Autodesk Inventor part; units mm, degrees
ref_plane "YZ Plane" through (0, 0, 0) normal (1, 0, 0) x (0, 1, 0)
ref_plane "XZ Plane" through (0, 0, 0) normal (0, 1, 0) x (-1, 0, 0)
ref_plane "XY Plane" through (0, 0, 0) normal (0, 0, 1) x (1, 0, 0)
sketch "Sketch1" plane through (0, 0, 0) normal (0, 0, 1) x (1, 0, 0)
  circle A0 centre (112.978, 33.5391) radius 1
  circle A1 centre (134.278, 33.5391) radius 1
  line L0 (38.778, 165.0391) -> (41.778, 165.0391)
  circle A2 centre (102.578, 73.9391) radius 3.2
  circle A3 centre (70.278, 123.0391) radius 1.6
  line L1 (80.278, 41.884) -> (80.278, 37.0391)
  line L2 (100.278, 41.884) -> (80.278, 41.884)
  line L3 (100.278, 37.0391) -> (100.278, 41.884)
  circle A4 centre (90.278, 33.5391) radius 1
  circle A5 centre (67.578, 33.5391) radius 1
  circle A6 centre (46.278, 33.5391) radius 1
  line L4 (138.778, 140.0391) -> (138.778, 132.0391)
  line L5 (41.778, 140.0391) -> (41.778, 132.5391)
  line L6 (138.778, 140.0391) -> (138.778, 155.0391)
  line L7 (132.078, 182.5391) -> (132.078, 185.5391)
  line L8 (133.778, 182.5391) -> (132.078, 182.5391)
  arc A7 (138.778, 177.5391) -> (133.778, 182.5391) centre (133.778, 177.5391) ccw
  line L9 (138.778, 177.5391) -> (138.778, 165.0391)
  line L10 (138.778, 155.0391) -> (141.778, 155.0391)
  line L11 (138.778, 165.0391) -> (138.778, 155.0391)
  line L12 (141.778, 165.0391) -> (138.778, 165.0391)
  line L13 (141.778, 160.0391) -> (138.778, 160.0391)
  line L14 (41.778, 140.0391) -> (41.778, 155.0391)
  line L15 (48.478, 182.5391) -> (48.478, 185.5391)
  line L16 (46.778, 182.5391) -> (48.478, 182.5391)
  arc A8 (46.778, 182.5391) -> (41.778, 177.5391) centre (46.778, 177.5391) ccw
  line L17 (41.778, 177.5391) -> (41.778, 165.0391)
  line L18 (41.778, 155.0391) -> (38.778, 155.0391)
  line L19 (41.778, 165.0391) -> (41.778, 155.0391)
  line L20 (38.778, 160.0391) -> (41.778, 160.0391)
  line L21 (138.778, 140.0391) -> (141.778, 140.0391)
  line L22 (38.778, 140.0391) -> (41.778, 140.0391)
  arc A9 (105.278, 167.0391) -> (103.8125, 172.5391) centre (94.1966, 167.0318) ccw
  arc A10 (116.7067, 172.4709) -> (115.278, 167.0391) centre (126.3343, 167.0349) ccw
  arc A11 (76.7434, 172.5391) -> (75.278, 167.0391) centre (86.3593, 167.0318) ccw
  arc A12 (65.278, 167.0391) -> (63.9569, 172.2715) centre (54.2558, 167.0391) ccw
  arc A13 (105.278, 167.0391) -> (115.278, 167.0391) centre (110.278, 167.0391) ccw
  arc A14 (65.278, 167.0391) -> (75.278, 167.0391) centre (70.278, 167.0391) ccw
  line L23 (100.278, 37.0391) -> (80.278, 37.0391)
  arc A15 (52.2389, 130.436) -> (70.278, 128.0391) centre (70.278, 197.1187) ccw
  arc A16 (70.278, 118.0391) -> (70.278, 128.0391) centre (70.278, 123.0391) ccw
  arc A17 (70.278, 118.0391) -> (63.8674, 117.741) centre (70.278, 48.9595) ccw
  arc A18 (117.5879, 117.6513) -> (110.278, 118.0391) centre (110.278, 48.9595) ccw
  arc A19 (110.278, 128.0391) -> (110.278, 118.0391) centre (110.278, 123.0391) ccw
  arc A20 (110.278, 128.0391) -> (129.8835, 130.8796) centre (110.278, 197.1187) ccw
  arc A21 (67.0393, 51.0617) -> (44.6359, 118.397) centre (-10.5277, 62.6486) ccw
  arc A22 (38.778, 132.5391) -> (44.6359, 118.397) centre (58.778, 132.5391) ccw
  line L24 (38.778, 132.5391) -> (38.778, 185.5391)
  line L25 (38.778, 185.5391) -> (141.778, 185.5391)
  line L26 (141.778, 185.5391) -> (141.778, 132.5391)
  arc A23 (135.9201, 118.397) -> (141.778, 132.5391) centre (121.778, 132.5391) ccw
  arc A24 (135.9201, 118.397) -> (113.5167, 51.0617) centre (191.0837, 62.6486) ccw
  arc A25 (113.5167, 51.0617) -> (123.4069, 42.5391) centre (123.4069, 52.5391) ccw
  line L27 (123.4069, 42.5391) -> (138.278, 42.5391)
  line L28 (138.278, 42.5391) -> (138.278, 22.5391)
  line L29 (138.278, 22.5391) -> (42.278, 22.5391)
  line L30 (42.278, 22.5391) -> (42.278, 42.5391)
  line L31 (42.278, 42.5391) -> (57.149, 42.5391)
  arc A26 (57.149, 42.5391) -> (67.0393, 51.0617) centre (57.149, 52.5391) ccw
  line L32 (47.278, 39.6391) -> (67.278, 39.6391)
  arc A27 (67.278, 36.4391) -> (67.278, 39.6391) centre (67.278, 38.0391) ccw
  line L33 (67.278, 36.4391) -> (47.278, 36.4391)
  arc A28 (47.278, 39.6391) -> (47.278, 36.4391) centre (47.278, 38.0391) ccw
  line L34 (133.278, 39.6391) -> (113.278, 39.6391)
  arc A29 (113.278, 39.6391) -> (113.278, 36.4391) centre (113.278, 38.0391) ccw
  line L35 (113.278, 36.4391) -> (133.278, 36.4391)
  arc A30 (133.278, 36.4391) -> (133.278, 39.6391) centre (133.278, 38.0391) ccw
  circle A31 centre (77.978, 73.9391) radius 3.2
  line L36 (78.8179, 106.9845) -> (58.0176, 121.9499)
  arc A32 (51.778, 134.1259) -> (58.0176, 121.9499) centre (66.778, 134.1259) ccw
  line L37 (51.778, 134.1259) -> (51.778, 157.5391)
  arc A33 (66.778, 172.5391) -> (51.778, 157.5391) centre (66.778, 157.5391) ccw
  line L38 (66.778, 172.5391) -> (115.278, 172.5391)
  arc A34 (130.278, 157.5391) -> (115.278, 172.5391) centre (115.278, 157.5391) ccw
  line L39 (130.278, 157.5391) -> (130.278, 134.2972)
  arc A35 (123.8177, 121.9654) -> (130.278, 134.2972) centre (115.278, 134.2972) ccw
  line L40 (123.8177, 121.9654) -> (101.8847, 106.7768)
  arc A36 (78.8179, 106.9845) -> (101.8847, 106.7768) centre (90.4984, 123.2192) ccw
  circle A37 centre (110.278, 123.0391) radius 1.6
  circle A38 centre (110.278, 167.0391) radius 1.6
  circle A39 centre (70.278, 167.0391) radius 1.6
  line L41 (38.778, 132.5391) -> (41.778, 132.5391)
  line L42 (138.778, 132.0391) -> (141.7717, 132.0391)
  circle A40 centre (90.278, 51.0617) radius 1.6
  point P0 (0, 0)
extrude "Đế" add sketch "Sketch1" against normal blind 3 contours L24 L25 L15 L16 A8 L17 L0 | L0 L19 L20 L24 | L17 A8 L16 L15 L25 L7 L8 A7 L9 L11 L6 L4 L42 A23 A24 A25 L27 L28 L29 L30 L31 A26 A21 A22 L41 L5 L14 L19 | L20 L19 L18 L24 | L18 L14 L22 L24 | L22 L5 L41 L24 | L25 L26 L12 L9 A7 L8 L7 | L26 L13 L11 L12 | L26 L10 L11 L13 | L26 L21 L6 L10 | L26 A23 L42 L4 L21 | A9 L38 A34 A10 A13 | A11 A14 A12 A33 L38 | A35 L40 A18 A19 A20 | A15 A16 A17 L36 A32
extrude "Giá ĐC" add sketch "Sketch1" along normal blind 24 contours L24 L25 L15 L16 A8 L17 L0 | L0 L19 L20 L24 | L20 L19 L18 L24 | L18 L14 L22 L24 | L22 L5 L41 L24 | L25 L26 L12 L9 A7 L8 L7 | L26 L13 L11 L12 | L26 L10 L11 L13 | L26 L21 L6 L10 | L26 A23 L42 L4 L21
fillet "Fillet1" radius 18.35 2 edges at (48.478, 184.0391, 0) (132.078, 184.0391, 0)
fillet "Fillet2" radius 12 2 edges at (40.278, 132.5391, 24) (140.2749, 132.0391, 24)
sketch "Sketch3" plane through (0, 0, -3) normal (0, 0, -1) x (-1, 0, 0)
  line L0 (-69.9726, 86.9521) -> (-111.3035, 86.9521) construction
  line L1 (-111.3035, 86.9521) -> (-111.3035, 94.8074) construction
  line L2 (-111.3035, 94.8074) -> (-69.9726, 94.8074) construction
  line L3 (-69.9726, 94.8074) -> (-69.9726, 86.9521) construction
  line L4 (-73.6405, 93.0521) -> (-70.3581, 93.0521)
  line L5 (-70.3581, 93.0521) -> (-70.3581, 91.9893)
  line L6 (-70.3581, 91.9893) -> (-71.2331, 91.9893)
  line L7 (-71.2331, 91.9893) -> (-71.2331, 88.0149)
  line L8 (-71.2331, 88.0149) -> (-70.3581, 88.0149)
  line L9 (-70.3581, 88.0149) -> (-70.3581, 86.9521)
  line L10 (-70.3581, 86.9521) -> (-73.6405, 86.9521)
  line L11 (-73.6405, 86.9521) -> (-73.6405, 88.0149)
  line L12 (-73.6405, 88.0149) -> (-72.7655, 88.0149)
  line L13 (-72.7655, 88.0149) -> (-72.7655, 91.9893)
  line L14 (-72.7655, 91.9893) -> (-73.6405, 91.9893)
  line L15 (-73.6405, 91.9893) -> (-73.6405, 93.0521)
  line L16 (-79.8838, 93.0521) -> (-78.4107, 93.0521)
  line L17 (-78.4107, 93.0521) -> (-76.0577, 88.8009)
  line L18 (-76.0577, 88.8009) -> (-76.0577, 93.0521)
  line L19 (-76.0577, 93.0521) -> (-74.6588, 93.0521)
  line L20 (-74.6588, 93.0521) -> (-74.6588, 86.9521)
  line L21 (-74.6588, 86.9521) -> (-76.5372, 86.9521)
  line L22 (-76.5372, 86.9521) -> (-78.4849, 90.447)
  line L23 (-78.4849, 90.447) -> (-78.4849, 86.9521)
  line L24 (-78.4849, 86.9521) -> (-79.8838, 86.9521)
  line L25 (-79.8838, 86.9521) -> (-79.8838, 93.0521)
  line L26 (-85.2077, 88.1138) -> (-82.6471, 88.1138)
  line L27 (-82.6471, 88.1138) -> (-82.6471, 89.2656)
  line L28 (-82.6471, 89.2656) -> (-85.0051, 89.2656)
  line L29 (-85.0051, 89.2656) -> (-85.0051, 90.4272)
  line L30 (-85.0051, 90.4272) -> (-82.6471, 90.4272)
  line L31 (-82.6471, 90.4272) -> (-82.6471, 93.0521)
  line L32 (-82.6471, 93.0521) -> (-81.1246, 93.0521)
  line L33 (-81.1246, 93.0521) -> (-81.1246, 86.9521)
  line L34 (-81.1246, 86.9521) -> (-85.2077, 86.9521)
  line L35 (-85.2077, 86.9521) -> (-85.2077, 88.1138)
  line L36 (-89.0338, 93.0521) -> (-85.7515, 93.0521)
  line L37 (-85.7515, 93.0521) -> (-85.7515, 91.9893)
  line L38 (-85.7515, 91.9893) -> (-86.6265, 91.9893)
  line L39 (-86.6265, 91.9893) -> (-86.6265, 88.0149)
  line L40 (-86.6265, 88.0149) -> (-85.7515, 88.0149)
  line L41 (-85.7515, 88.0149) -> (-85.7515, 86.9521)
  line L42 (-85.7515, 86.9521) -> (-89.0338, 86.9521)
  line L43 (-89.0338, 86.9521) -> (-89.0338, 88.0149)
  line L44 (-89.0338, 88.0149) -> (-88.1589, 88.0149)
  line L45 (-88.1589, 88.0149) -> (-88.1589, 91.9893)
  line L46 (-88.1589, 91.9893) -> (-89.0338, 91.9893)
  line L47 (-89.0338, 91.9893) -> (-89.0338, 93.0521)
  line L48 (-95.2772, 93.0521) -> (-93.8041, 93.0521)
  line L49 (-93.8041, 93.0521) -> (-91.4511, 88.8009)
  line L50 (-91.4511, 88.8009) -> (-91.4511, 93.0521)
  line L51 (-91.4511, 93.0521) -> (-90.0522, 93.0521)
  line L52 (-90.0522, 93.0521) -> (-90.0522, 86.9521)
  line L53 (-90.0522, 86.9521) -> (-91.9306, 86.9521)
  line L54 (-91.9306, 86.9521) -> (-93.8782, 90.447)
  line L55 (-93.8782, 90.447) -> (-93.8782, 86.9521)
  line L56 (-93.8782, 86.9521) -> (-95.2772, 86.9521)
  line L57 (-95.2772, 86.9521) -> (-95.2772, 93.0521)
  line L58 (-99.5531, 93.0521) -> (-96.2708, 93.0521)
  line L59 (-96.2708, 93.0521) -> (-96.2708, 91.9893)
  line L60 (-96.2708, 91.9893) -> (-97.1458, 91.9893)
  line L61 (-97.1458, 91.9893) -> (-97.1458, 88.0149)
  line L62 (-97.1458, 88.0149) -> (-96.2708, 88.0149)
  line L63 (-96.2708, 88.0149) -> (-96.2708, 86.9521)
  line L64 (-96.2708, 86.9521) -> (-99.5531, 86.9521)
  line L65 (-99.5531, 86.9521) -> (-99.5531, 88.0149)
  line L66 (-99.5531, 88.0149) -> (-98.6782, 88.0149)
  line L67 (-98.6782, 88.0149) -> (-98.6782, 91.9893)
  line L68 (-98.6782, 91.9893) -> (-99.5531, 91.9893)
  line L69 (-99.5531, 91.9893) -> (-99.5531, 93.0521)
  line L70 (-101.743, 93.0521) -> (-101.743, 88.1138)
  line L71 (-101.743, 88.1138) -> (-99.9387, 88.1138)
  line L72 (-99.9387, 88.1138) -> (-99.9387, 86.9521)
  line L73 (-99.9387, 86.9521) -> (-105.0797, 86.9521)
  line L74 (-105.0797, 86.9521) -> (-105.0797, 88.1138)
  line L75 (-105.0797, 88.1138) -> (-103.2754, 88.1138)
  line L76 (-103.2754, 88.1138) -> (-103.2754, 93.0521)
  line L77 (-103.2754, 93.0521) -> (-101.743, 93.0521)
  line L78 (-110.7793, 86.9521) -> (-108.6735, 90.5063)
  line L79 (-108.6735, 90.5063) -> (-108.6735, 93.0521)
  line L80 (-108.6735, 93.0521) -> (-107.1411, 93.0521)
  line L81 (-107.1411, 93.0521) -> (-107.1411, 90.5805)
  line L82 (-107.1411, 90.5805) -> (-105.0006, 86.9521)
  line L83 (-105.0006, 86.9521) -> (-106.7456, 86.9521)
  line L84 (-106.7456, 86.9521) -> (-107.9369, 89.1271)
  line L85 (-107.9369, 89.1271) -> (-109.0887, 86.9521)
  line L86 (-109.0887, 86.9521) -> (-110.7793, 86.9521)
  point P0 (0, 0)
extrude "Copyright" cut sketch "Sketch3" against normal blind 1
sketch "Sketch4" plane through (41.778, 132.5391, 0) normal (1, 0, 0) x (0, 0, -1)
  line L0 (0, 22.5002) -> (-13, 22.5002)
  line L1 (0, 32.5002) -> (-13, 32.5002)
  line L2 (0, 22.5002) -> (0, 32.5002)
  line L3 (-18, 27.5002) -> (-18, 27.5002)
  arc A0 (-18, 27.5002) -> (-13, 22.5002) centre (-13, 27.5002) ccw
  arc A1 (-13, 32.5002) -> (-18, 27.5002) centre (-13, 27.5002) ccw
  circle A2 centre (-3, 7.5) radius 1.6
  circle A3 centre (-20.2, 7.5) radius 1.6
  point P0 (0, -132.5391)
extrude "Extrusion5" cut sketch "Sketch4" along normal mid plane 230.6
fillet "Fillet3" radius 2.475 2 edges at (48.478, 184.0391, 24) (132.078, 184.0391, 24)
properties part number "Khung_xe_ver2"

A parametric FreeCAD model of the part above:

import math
import FreeCAD as App
import Part
import Sketcher
Q = App.Units.Quantity


def edges_at(feature, points):
    """Names of the edges that pass closest to the given points."""
    edges = feature.Shape.Edges
    near = lambda p: min(range(len(edges)), key=lambda i: edges[i].distToShape(Part.Vertex(*p))[0])
    return sorted({f"Edge{near(p) + 1}" for p in points})


def add_polygon(sketch, points):
    """Adds a closed chain of lines whose ends are joined by coincident constraints."""
    first, n = sketch.GeometryCount, len(points)
    for a, b in zip(points, points[1:] + points[:1]):
        sketch.addGeometry(Part.LineSegment(App.Vector(*a, 0), App.Vector(*b, 0)), False)
    for i in range(n):
        sketch.addConstraint(Sketcher.Constraint("Coincident", first + i, 2, first + (i + 1) % n, 1))

doc = App.newDocument("Part")
body = doc.addObject("PartDesign::Body", "Body")

# Sketch on XY plane
sketch1 = doc.addObject("Sketcher::SketchObject", "Sketch")
body.addObject(sketch1)
sketch1.AttachmentSupport = (doc.XY_Plane, [""])
sketch1.MapMode = "FlatFace"
sketch1.addGeometry(Part.LineSegment(App.Vector(38.778, 185.5391, 0), App.Vector(38.778, 132.5391, 0)), False)  # 0
sketch1.addGeometry(Part.ArcOfCircle(Part.Circle(App.Vector(58.778, 132.5391, 0), App.Vector(0, 0, 1), 20), math.radians(180), math.radians(225)), False)  # 1
sketch1.addGeometry(Part.ArcOfCircle(Part.Circle(App.Vector(-10.5277, 62.6486, 0), App.Vector(0, 0, 1), 78.427647), math.radians(-8.495979), math.radians(45.302098)), False)  # 2
sketch1.addGeometry(Part.ArcOfCircle(Part.Circle(App.Vector(57.149, 52.5391, 0), App.Vector(0, 0, 1), 10), math.radians(-90), math.radians(-8.495947)), False)  # 3
sketch1.addGeometry(Part.LineSegment(App.Vector(57.149, 42.5391, 0), App.Vector(42.278, 42.5391, 0)), False)  # 4
sketch1.addGeometry(Part.LineSegment(App.Vector(42.278, 42.5391, 0), App.Vector(42.278, 22.5391, 0)), False)  # 5
sketch1.addGeometry(Part.LineSegment(App.Vector(42.278, 22.5391, 0), App.Vector(138.278, 22.5391, 0)), False)  # 6
sketch1.addGeometry(Part.LineSegment(App.Vector(138.278, 22.5391, 0), App.Vector(138.278, 42.5391, 0)), False)  # 7
sketch1.addGeometry(Part.LineSegment(App.Vector(138.278, 42.5391, 0), App.Vector(123.4069, 42.5391, 0)), False)  # 8
sketch1.addGeometry(Part.ArcOfCircle(Part.Circle(App.Vector(123.4069, 52.5391, 0), App.Vector(0, 0, 1), 9.999938), math.radians(-171.503968), math.radians(-90)), False)  # 9
sketch1.addGeometry(Part.ArcOfCircle(Part.Circle(App.Vector(191.0837, 62.6486, 0), App.Vector(0, 0, 1), 78.427717), math.radians(134.697902), math.radians(188.495979)), False)  # 10
sketch1.addGeometry(Part.ArcOfCircle(Part.Circle(App.Vector(121.778, 132.5391, 0), App.Vector(0, 0, 1), 19.99995), math.radians(-45), math.radians(0)), False)  # 11
sketch1.addGeometry(Part.LineSegment(App.Vector(141.778, 132.5391, 0), App.Vector(141.778, 185.5391, 0)), False)  # 12
sketch1.addGeometry(Part.LineSegment(App.Vector(141.778, 185.5391, 0), App.Vector(38.778, 185.5391, 0)), False)  # 13
sketch1.addGeometry(Part.LineSegment(App.Vector(130.278, 157.5391, 0), App.Vector(130.278, 134.2972, 0)), False)  # 14
sketch1.addGeometry(Part.ArcOfCircle(Part.Circle(App.Vector(115.278, 134.2972, 0), App.Vector(0, 0, 1), 14.999992), math.radians(-13.169918), math.radians(0)), False)  # 15
sketch1.addGeometry(Part.ArcOfCircle(Part.Circle(App.Vector(110.277928, 197.119703, 0), App.Vector(0, 0, 1), 69.080603), math.radians(-89.99994), math.radians(-73.512438)), False)  # 16
sketch1.addGeometry(Part.ArcOfCircle(Part.Circle(App.Vector(110.278, 123.0391, 0), App.Vector(0, 0, 1), 5), math.radians(90), math.radians(270)), False)  # 17
sketch1.addGeometry(Part.ArcOfCircle(Part.Circle(App.Vector(110.27941, 48.977195, 0), App.Vector(0, 0, 1), 69.061905), math.radians(83.925288), math.radians(90.00117)), False)  # 18
sketch1.addGeometry(Part.LineSegment(App.Vector(117.587917, 117.651276, 0), App.Vector(101.8847, 106.7768, 0)), False)  # 19
sketch1.addGeometry(Part.ArcOfCircle(Part.Circle(App.Vector(90.4984, 123.2192, 0), App.Vector(0, 0, 1), 19.999989), math.radians(-125.734163), math.radians(-55.297545)), False)  # 20
sketch1.addGeometry(Part.LineSegment(App.Vector(78.8179, 106.9845, 0), App.Vector(63.867441, 117.741057, 0)), False)  # 21
sketch1.addGeometry(Part.ArcOfCircle(Part.Circle(App.Vector(70.277953, 48.961517, 0), App.Vector(0, 0, 1), 69.077583), math.radians(89.999961), math.radians(95.324837)), False)  # 22
sketch1.addGeometry(Part.ArcOfCircle(Part.Circle(App.Vector(70.278, 123.0391, 0), App.Vector(0, 0, 1), 5), math.radians(-90), math.radians(90)), False)  # 23
sketch1.addGeometry(Part.ArcOfCircle(Part.Circle(App.Vector(70.278, 197.1187, 0), App.Vector(0, 0, 1), 69.079603), math.radians(-105.137418), math.radians(-90)), False)  # 24
sketch1.addGeometry(Part.ArcOfCircle(Part.Circle(App.Vector(66.778, 134.1259, 0), App.Vector(0, 0, 1), 15), math.radians(180), math.radians(194.240519)), False)  # 25
sketch1.addGeometry(Part.LineSegment(App.Vector(51.778, 134.1259, 0), App.Vector(51.778, 157.5391, 0)), False)  # 26
sketch1.addGeometry(Part.ArcOfCircle(Part.Circle(App.Vector(66.778, 157.5391, 0), App.Vector(0, 0, 1), 15), math.radians(100.840313), math.radians(180)), False)  # 27
sketch1.addGeometry(Part.ArcOfCircle(Part.Circle(App.Vector(54.2558, 167.0391, 0), App.Vector(0, 0, 1), 11.0222), math.radians(0), math.radians(28.340715)), False)  # 28
sketch1.addGeometry(Part.ArcOfCircle(Part.Circle(App.Vector(70.278, 167.0391, 0), App.Vector(0, 0, 1), 5), math.radians(180), math.radians(360)), False)  # 29
sketch1.addGeometry(Part.ArcOfCircle(Part.Circle(App.Vector(86.3593, 167.0318, 0), App.Vector(0, 0, 1), 11.081331), math.radians(150.199003), math.radians(179.962255)), False)  # 30
sketch1.addGeometry(Part.LineSegment(App.Vector(76.7434, 172.5391, 0), App.Vector(103.8125, 172.5391, 0)), False)  # 31
sketch1.addGeometry(Part.ArcOfCircle(Part.Circle(App.Vector(94.197671, 167.031941, 0), App.Vector(0, 0, 1), 11.080331), math.radians(0.037021), math.radians(29.803119)), False)  # 32
sketch1.addGeometry(Part.ArcOfCircle(Part.Circle(App.Vector(110.278, 167.0391, 0), App.Vector(0, 0, 1), 5), math.radians(180), math.radians(360)), False)  # 33
sketch1.addGeometry(Part.ArcOfCircle(Part.Circle(App.Vector(126.3343, 167.0349, 0), App.Vector(0, 0, 1), 11.056255), math.radians(150.549767), math.radians(179.978235)), False)  # 34
sketch1.addGeometry(Part.ArcOfCircle(Part.Circle(App.Vector(115.278, 157.5391, 0), App.Vector(0, 0, 1), 15), math.radians(0), math.radians(84.534481)), False)  # 35
sketch1.addGeometry(Part.Circle(App.Vector(46.278, 33.5391, 0), App.Vector(0, 0, 1), 1), False)  # 36
sketch1.addGeometry(Part.ArcOfCircle(Part.Circle(App.Vector(47.278, 38.0391, 0), App.Vector(0, 0, 1), 1.6), math.radians(90), math.radians(270)), False)  # 37
sketch1.addGeometry(Part.LineSegment(App.Vector(47.278, 39.6391, 0), App.Vector(67.278, 39.6391, 0)), False)  # 38
sketch1.addGeometry(Part.ArcOfCircle(Part.Circle(App.Vector(67.278, 38.0391, 0), App.Vector(0, 0, 1), 1.6), math.radians(-90), math.radians(90)), False)  # 39
sketch1.addGeometry(Part.LineSegment(App.Vector(67.278, 36.4391, 0), App.Vector(47.278, 36.4391, 0)), False)  # 40
sketch1.addGeometry(Part.Circle(App.Vector(67.578, 33.5391, 0), App.Vector(0, 0, 1), 1), False)  # 41
sketch1.addGeometry(Part.Circle(App.Vector(77.978, 73.9391, 0), App.Vector(0, 0, 1), 3.2), False)  # 42
sketch1.addGeometry(Part.Circle(App.Vector(90.278, 33.5391, 0), App.Vector(0, 0, 1), 1), False)  # 43
add_polygon(sketch1, [(80.278, 37.0391), (80.278, 41.884), (100.278, 41.884), (100.278, 37.0391)])  # lines 44-47
sketch1.addGeometry(Part.Circle(App.Vector(112.978, 33.5391, 0), App.Vector(0, 0, 1), 1), False)  # 48
sketch1.addGeometry(Part.Circle(App.Vector(90.278, 51.0617, 0), App.Vector(0, 0, 1), 1.6), False)  # 49
sketch1.addGeometry(Part.LineSegment(App.Vector(113.278, 39.6391, 0), App.Vector(133.278, 39.6391, 0)), False)  # 50
sketch1.addGeometry(Part.ArcOfCircle(Part.Circle(App.Vector(133.278, 38.0391, 0), App.Vector(0, 0, 1), 1.6), math.radians(-90), math.radians(90)), False)  # 51
sketch1.addGeometry(Part.LineSegment(App.Vector(133.278, 36.4391, 0), App.Vector(113.278, 36.4391, 0)), False)  # 52
sketch1.addGeometry(Part.ArcOfCircle(Part.Circle(App.Vector(113.278, 38.0391, 0), App.Vector(0, 0, 1), 1.6), math.radians(90), math.radians(270)), False)  # 53
sketch1.addGeometry(Part.Circle(App.Vector(134.278, 33.5391, 0), App.Vector(0, 0, 1), 1), False)  # 54
sketch1.addGeometry(Part.Circle(App.Vector(102.578, 73.9391, 0), App.Vector(0, 0, 1), 3.2), False)  # 55
sketch1.addGeometry(Part.Circle(App.Vector(110.278, 167.0391, 0), App.Vector(0, 0, 1), 1.6), False)  # 56
sketch1.addGeometry(Part.Circle(App.Vector(70.278, 167.0391, 0), App.Vector(0, 0, 1), 1.6), False)  # 57
sketch1.addGeometry(Part.Circle(App.Vector(70.278, 123.0391, 0), App.Vector(0, 0, 1), 1.6), False)  # 58
sketch1.addGeometry(Part.Circle(App.Vector(110.278, 123.0391, 0), App.Vector(0, 0, 1), 1.6), False)  # 59
sketch1.addConstraint([
    Sketcher.Constraint("Coincident", 0, 2, 1, 1),
    Sketcher.Constraint("Coincident", 1, 2, 2, 2),
    Sketcher.Constraint("Coincident", 2, 1, 3, 2),
    Sketcher.Constraint("Coincident", 3, 1, 4, 1),
    Sketcher.Constraint("Coincident", 4, 2, 5, 1),
    Sketcher.Constraint("Coincident", 5, 2, 6, 1),
    Sketcher.Constraint("Coincident", 6, 2, 7, 1),
    Sketcher.Constraint("Coincident", 7, 2, 8, 1),
    Sketcher.Constraint("Coincident", 8, 2, 9, 2),
    Sketcher.Constraint("Coincident", 9, 1, 10, 2),
    Sketcher.Constraint("Coincident", 10, 1, 11, 1),
    Sketcher.Constraint("Coincident", 11, 2, 12, 1),
    Sketcher.Constraint("Coincident", 12, 2, 13, 1),
    Sketcher.Constraint("Coincident", 13, 2, 0, 1),
    Sketcher.Constraint("Coincident", 14, 2, 15, 2),
    Sketcher.Constraint("Coincident", 15, 1, 16, 2),
    Sketcher.Constraint("Coincident", 16, 1, 17, 1),
    Sketcher.Constraint("Coincident", 17, 2, 18, 2),
    Sketcher.Constraint("Coincident", 18, 1, 19, 1),
    Sketcher.Constraint("Coincident", 19, 2, 20, 2),
    Sketcher.Constraint("Coincident", 20, 1, 21, 1),
    Sketcher.Constraint("Coincident", 21, 2, 22, 2),
    Sketcher.Constraint("Coincident", 22, 1, 23, 1),
    Sketcher.Constraint("Coincident", 23, 2, 24, 2),
    Sketcher.Constraint("Coincident", 24, 1, 25, 2),
    Sketcher.Constraint("Coincident", 25, 1, 26, 1),
    Sketcher.Constraint("Coincident", 26, 2, 27, 2),
    Sketcher.Constraint("Coincident", 27, 1, 28, 2),
    Sketcher.Constraint("Coincident", 28, 1, 29, 1),
    Sketcher.Constraint("Coincident", 29, 2, 30, 2),
    Sketcher.Constraint("Coincident", 30, 1, 31, 1),
    Sketcher.Constraint("Coincident", 31, 2, 32, 2),
    Sketcher.Constraint("Coincident", 32, 1, 33, 1),
    Sketcher.Constraint("Coincident", 33, 2, 34, 2),
    Sketcher.Constraint("Coincident", 34, 1, 35, 2),
    Sketcher.Constraint("Coincident", 35, 1, 14, 1),
    Sketcher.Constraint("Coincident", 37, 1, 38, 1),
    Sketcher.Constraint("Coincident", 38, 2, 39, 2),
    Sketcher.Constraint("Coincident", 39, 1, 40, 1),
    Sketcher.Constraint("Coincident", 40, 2, 37, 2),
    Sketcher.Constraint("Coincident", 50, 2, 51, 2),
    Sketcher.Constraint("Coincident", 51, 1, 52, 1),
    Sketcher.Constraint("Coincident", 52, 2, 53, 2),
    Sketcher.Constraint("Coincident", 53, 1, 50, 1),
    Sketcher.Constraint("Vertical", 0),
    Sketcher.Constraint("Horizontal", 4),
    Sketcher.Constraint("Vertical", 5),
    Sketcher.Constraint("Horizontal", 6),
    Sketcher.Constraint("Vertical", 7),
    Sketcher.Constraint("Horizontal", 8),
    Sketcher.Constraint("Vertical", 12),
    Sketcher.Constraint("Horizontal", 13),
    Sketcher.Constraint("Vertical", 14),
    Sketcher.Constraint("Vertical", 26),
    Sketcher.Constraint("Horizontal", 31),
    Sketcher.Constraint("Horizontal", 38),
    Sketcher.Constraint("Horizontal", 40),
    Sketcher.Constraint("Vertical", 44),
    Sketcher.Constraint("Horizontal", 45),
    Sketcher.Constraint("Vertical", 46),
    Sketcher.Constraint("Horizontal", 47),
    Sketcher.Constraint("Horizontal", 50),
    Sketcher.Constraint("Horizontal", 52),
    Sketcher.Constraint("Coincident", 56, 3, 33, 3),
    Sketcher.Constraint("Coincident", 57, 3, 29, 3),
    Sketcher.Constraint("Coincident", 58, 3, 23, 3),
    Sketcher.Constraint("Coincident", 59, 3, 17, 3),
    Sketcher.Constraint("Diameter", 36, 2.0),
    Sketcher.Constraint("Diameter", 41, 2.0),
    Sketcher.Constraint("Diameter", 43, 2.0),
    Sketcher.Constraint("Diameter", 48, 2.0),
    Sketcher.Constraint("Diameter", 54, 2.0),
    Sketcher.Constraint("Radius", 1, 20.0),
    Sketcher.Constraint("Radius", 3, 10.0),
    Sketcher.Constraint("Radius", 9, 10.0),
    Sketcher.Constraint("Radius", 11, 20.0),
    Sketcher.Constraint("Radius", 15, 15.0),
    Sketcher.Constraint("Radius", 17, 5.0),
    Sketcher.Constraint("Radius", 20, 20.0),
    Sketcher.Constraint("Radius", 23, 5.0),
    Sketcher.Constraint("Radius", 25, 15.0),
    Sketcher.Constraint("Radius", 27, 15.0),
    Sketcher.Constraint("Radius", 29, 5.0),
    Sketcher.Constraint("Radius", 33, 5.0),
    Sketcher.Constraint("Radius", 35, 15.0),
    Sketcher.Constraint("Diameter", 42, 6.4),
    Sketcher.Constraint("Diameter", 49, 3.2),
    Sketcher.Constraint("Diameter", 55, 6.4),
    Sketcher.Constraint("Diameter", 56, 3.2),
    Sketcher.Constraint("Diameter", 57, 3.2),
    Sketcher.Constraint("Diameter", 58, 3.2),
    Sketcher.Constraint("Diameter", 59, 3.2),
    Sketcher.Constraint("Radius", 37, 1.6),
    Sketcher.Constraint("Radius", 51, 1.6),
    Sketcher.Constraint("DistanceX", 6, 1, 6, 2, 96.0),
    Sketcher.Constraint("DistanceX", 13, 2, 13, 1, 103.0),
    Sketcher.Constraint("DistanceX", 38, 1, 38, 2, 20.0),
    Sketcher.Constraint("DistanceX", 40, 2, 40, 1, 20.0),
    Sketcher.Constraint("DistanceX", 45, 1, 45, 2, 20.0),
    Sketcher.Constraint("DistanceX", 50, 1, 50, 2, 20.0),
    Sketcher.Constraint("DistanceX", 52, 2, 52, 1, 20.0),
    Sketcher.Constraint("DistanceY", 0, 2, 0, 1, 53.0),
    Sketcher.Constraint("DistanceY", 5, 2, 5, 1, 20.0),
    Sketcher.Constraint("DistanceY", 7, 1, 7, 2, 20.0),
    Sketcher.Constraint("DistanceY", 12, 1, 12, 2, 53.0),
    Sketcher.Constraint("Radius", 18, 69.062),
    Sketcher.Constraint("Radius", 2, 78.4276),
    Sketcher.Constraint("Radius", 10, 78.4277),
    Sketcher.Constraint("Radius", 16, 69.0806),
    Sketcher.Constraint("Radius", 22, 69.0776),
    Sketcher.Constraint("Radius", 24, 69.0796),
    Sketcher.Constraint("Radius", 28, 11.0222),
    Sketcher.Constraint("Radius", 30, 11.0813),
    Sketcher.Constraint("Radius", 32, 11.0803),
    Sketcher.Constraint("Radius", 34, 11.0563),
    Sketcher.Constraint("DistanceX", 4, 2, 4, 1, 14.871),
    Sketcher.Constraint("DistanceX", 8, 2, 8, 1, 14.871),
    Sketcher.Constraint("DistanceX", 31, 1, 31, 2, 27.069),
    Sketcher.Constraint("DistanceY", 14, 2, 14, 1, 23.242),
    Sketcher.Constraint("DistanceY", 44, 1, 44, 2, 4.845),
    Sketcher.Constraint("DistanceX", -1, 1, 10, 1, 135.92),
    Sketcher.Constraint("Distance", 19, 19.101),
    Sketcher.Constraint("Distance", 21, 18.418),
    Sketcher.Constraint("DistanceY", 26, 1, 26, 2, 23.4132),
    Sketcher.Constraint("DistanceX", -1, 1, 1, 3, 58.778),
    Sketcher.Constraint("DistanceY", -1, 1, 1, 3, 132.539),
    Sketcher.Constraint("DistanceX", -1, 1, 3, 3, 57.149),
    Sketcher.Constraint("DistanceY", -1, 1, 3, 3, 52.539),
    Sketcher.Constraint("DistanceX", -1, 1, 9, 3, 123.407),
    Sketcher.Constraint("DistanceY", -1, 1, 11, 3, 132.539),
    Sketcher.Constraint("DistanceX", -1, 1, 15, 3, 115.278),
    Sketcher.Constraint("DistanceX", -1, 1, 16, 3, 110.278),
    Sketcher.Constraint("DistanceX", -1, 1, 17, 3, 110.278),
    Sketcher.Constraint("DistanceY", -1, 1, 17, 3, 123.039),
    Sketcher.Constraint("DistanceX", -1, 1, 22, 3, 70.278),
    Sketcher.Constraint("DistanceX", -1, 1, 23, 3, 70.278),
    Sketcher.Constraint("DistanceY", -1, 1, 23, 3, 123.039),
    Sketcher.Constraint("DistanceX", -1, 1, 24, 3, 70.278),
    Sketcher.Constraint("DistanceX", -1, 1, 25, 3, 66.778),
    Sketcher.Constraint("DistanceY", -1, 1, 25, 3, 134.126),
    Sketcher.Constraint("DistanceY", -1, 1, 27, 3, 157.539),
    Sketcher.Constraint("DistanceY", -1, 1, 28, 3, 167.039),
    Sketcher.Constraint("DistanceX", -1, 1, 29, 3, 70.278),
    Sketcher.Constraint("DistanceY", -1, 1, 29, 3, 167.039),
    Sketcher.Constraint("DistanceY", -1, 1, 32, 3, 167.032),
    Sketcher.Constraint("DistanceX", -1, 1, 33, 3, 110.278),
    Sketcher.Constraint("DistanceY", -1, 1, 33, 3, 167.039),
    Sketcher.Constraint("DistanceY", -1, 1, 34, 3, 167.035),
    Sketcher.Constraint("DistanceY", -1, 1, 35, 3, 157.539),
    Sketcher.Constraint("DistanceX", -1, 1, 36, 3, 46.278),
    Sketcher.Constraint("DistanceY", -1, 1, 36, 3, 33.539),
    Sketcher.Constraint("DistanceX", -1, 1, 37, 3, 47.278),
    Sketcher.Constraint("DistanceY", -1, 1, 37, 3, 38.039),
    Sketcher.Constraint("DistanceX", -1, 1, 39, 3, 67.278),
    Sketcher.Constraint("DistanceX", -1, 1, 41, 3, 67.578),
    Sketcher.Constraint("DistanceY", -1, 1, 41, 3, 33.539),
    Sketcher.Constraint("DistanceX", -1, 1, 42, 3, 77.978),
    Sketcher.Constraint("DistanceY", -1, 1, 42, 3, 73.939),
    Sketcher.Constraint("DistanceX", -1, 1, 43, 3, 90.278),
    Sketcher.Constraint("DistanceY", -1, 1, 43, 3, 33.539),
    Sketcher.Constraint("DistanceX", -1, 1, 48, 3, 112.978),
    Sketcher.Constraint("DistanceY", -1, 1, 48, 3, 33.539),
    Sketcher.Constraint("DistanceX", -1, 1, 49, 3, 90.278),
    Sketcher.Constraint("DistanceX", -1, 1, 51, 3, 133.278),
    Sketcher.Constraint("DistanceY", -1, 1, 51, 3, 38.039),
    Sketcher.Constraint("DistanceX", -1, 1, 53, 3, 113.278),
    Sketcher.Constraint("DistanceX", -1, 1, 54, 3, 134.278),
    Sketcher.Constraint("DistanceY", -1, 1, 54, 3, 33.539),
    Sketcher.Constraint("DistanceX", -1, 1, 55, 3, 102.578),
    Sketcher.Constraint("DistanceY", -1, 1, 55, 3, 73.939),
    Sketcher.Constraint("DistanceY", -1, 1, 0, 2, 132.539),
    Sketcher.Constraint("DistanceY", -1, 1, 1, 2, 118.397),
    Sketcher.Constraint("DistanceX", -1, 1, 3, 1, 57.149),
    Sketcher.Constraint("DistanceX", -1, 1, 16, 1, 110.278),
    Sketcher.Constraint("DistanceX", -1, 1, 17, 2, 110.278),
    Sketcher.Constraint("DistanceX", -1, 1, 18, 1, 117.588),
    Sketcher.Constraint("DistanceX", -1, 1, 20, 1, 78.818),
    Sketcher.Constraint("DistanceY", -1, 1, 21, 2, 117.741),
    Sketcher.Constraint("DistanceX", -1, 1, 22, 1, 70.278),
    Sketcher.Constraint("DistanceX", -1, 1, 23, 2, 70.278),
    Sketcher.Constraint("DistanceY", -1, 1, 25, 1, 134.126),
    Sketcher.Constraint("DistanceY", -1, 1, 28, 1, 167.039),
    Sketcher.Constraint("DistanceY", -1, 1, 29, 2, 167.039),
    Sketcher.Constraint("DistanceY", -1, 1, 30, 1, 172.539),
    Sketcher.Constraint("DistanceY", -1, 1, 32, 1, 167.039),
    Sketcher.Constraint("DistanceY", -1, 1, 33, 2, 167.039),
    Sketcher.Constraint("DistanceY", -1, 1, 35, 1, 157.539),
    Sketcher.Constraint("DistanceX", -1, 1, 37, 1, 47.278),
    Sketcher.Constraint("DistanceX", -1, 1, 39, 1, 67.278),
    Sketcher.Constraint("DistanceX", -1, 1, 44, 2, 80.278),
    Sketcher.Constraint("DistanceY", -1, 1, 44, 2, 41.884),
    Sketcher.Constraint("DistanceX", -1, 1, 50, 2, 133.278),
    Sketcher.Constraint("DistanceX", -1, 1, 51, 1, 133.278),
    Sketcher.Constraint("DistanceY", -1, 1, 15, 3, 134.2972),
    Sketcher.Constraint("DistanceX", -1, 1, 18, 3, 110.2794),
    Sketcher.Constraint("DistanceX", -1, 1, 20, 3, 90.4984),
    Sketcher.Constraint("DistanceY", -1, 1, 49, 3, 51.0617),
    Sketcher.Constraint("DistanceX", -1, 1, 2, 1, 67.0393),
    Sketcher.Constraint("DistanceX", -1, 1, 9, 1, 113.5167),
])
pad1 = doc.addObject("PartDesign::Pad", "Pad")
body.addObject(pad1)
pad1.Profile = sketch1
pad1.Length = 3
pad1.Reversed = True

# Sketch on XY plane
sketch2 = doc.addObject("Sketcher::SketchObject", "Sketch001")
body.addObject(sketch2)
sketch2.AttachmentSupport = (doc.XY_Plane, [""])
sketch2.MapMode = "FlatFace"
sketch2.addGeometry([
    Part.LineSegment(App.Vector(38.778, 185.5391, 0), App.Vector(38.778, 132.5391, 0)),  # 0
    Part.LineSegment(App.Vector(38.778, 132.5391, 0), App.Vector(41.778, 132.5391, 0)),  # 1
    Part.LineSegment(App.Vector(41.778, 132.5391, 0), App.Vector(41.778, 177.5391, 0)),  # 2
    Part.ArcOfCircle(Part.Circle(App.Vector(46.778, 177.5391, 0), App.Vector(0, 0, 1), 5), math.radians(90), math.radians(180)),  # 3
    Part.LineSegment(App.Vector(46.778, 182.5391, 0), App.Vector(48.478, 182.5391, 0)),  # 4
    Part.LineSegment(App.Vector(48.478, 182.5391, 0), App.Vector(48.478, 185.5391, 0)),  # 5
    Part.LineSegment(App.Vector(48.478, 185.5391, 0), App.Vector(38.778, 185.5391, 0)),  # 6
    Part.LineSegment(App.Vector(141.778, 185.5391, 0), App.Vector(132.078, 185.5391, 0)),  # 7
    Part.LineSegment(App.Vector(132.078, 185.5391, 0), App.Vector(132.078, 182.5391, 0)),  # 8
    Part.LineSegment(App.Vector(132.078, 182.5391, 0), App.Vector(133.778, 182.5391, 0)),  # 9
    Part.ArcOfCircle(Part.Circle(App.Vector(133.778, 177.5391, 0), App.Vector(0, 0, 1), 5), math.radians(0), math.radians(90)),  # 10
    Part.LineSegment(App.Vector(138.778, 177.5391, 0), App.Vector(138.778, 132.0391, 0)),  # 11
    Part.LineSegment(App.Vector(138.778, 132.0391, 0), App.Vector(141.7717, 132.0391, 0)),  # 12
    Part.ArcOfCircle(Part.Circle(App.Vector(121.778, 132.5391, 0), App.Vector(0, 0, 1), 19.99995), math.radians(-1.432547), math.radians(0)),  # 13
    Part.LineSegment(App.Vector(141.778, 132.5391, 0), App.Vector(141.778, 185.5391, 0)),  # 14
], False)
sketch2.addConstraint([
    Sketcher.Constraint("Coincident", 0, 2, 1, 1),
    Sketcher.Constraint("Coincident", 1, 2, 2, 1),
    Sketcher.Constraint("Tangent", 2, 2, 3, 2),
    Sketcher.Constraint("Tangent", 3, 1, 4, 1),
    Sketcher.Constraint("Coincident", 4, 2, 5, 1),
    Sketcher.Constraint("Coincident", 5, 2, 6, 1),
    Sketcher.Constraint("Coincident", 6, 2, 0, 1),
    Sketcher.Constraint("Coincident", 7, 2, 8, 1),
    Sketcher.Constraint("Coincident", 8, 2, 9, 1),
    Sketcher.Constraint("Tangent", 9, 2, 10, 2),
    Sketcher.Constraint("Tangent", 10, 1, 11, 1),
    Sketcher.Constraint("Coincident", 11, 2, 12, 1),
    Sketcher.Constraint("Coincident", 12, 2, 13, 1),
    Sketcher.Constraint("Tangent", 13, 2, 14, 1),
    Sketcher.Constraint("Coincident", 14, 2, 7, 1),
    Sketcher.Constraint("Vertical", 0),
    Sketcher.Constraint("Horizontal", 1),
    Sketcher.Constraint("Vertical", 2),
    Sketcher.Constraint("Horizontal", 4),
    Sketcher.Constraint("Vertical", 5),
    Sketcher.Constraint("Horizontal", 6),
    Sketcher.Constraint("Horizontal", 7),
    Sketcher.Constraint("Vertical", 8),
    Sketcher.Constraint("Horizontal", 9),
    Sketcher.Constraint("Vertical", 11),
    Sketcher.Constraint("Horizontal", 12),
    Sketcher.Constraint("Vertical", 14),
    Sketcher.Constraint("Equal", 3, 10),
    Sketcher.Constraint("Horizontal", 3, 3, 10, 3),
    Sketcher.Constraint("Horizontal", 13, 3, 0, 2),
    Sketcher.Constraint("Horizontal", 6, 2, 7, 2),
    Sketcher.Constraint("Equal", 6, 7),
    Sketcher.Constraint("Equal", 4, 9),
    Sketcher.Constraint("Equal", 1, 5),
    Sketcher.Constraint("Radius", 3, 5.0),
    Sketcher.Constraint("Radius", 13, 20.0),
    Sketcher.Constraint("DistanceX", 1, 1, 1, 2, 3.0),
    Sketcher.Constraint("DistanceY", 0, 2, 0, 1, 53.0),
    Sketcher.Constraint("DistanceX", 4, 1, 4, 2, 1.7),
    Sketcher.Constraint("DistanceY", 11, 2, 11, 1, 45.5),
    Sketcher.Constraint("DistanceX", 3, 3, 10, 3, 87.0),
    Sketcher.Constraint("DistanceX", -1, 1, 3, 3, 46.778),
    Sketcher.Constraint("DistanceY", -1, 1, 3, 3, 177.539),
])
pad2 = doc.addObject("PartDesign::Pad", "Pad001")
body.addObject(pad2)
pad2.Profile = sketch2
pad2.Length = 24
doc.recompute()

fillet = doc.addObject("PartDesign::Fillet", "Fillet")
body.addObject(fillet)
fillet.Base = (pad2, edges_at(pad2, [(48.478, 184.039, 0), (132.078, 184.039, 0)]))
fillet.Radius = 18.35
doc.recompute()

fillet2 = doc.addObject("PartDesign::Fillet", "Fillet001")
body.addObject(fillet2)
fillet2.Base = (fillet, edges_at(fillet, [(40.278, 132.539, 24), (140.275, 132.039, 24)]))
fillet2.Radius = 12

# Sketch on XY plane
sketch3 = doc.addObject("Sketcher::SketchObject", "Sketch002")
body.addObject(sketch3)
sketch3.AttachmentSupport = (doc.XY_Plane, [""])
sketch3.MapMode = "FlatFace"
sketch3.AttachmentOffset = App.Placement(App.Vector(0, 0, -3), App.Rotation())
add_polygon(sketch3, [(70.3581, 93.0521), (73.6405, 93.0521), (73.6405, 91.9893), (72.7655, 91.9893), (72.7655, 88.0149), (73.6405, 88.0149), (73.6405, 86.9521), (70.3581, 86.9521), (70.3581, 88.0149), (71.2331, 88.0149), (71.2331, 91.9893), (70.3581, 91.9893)])  # lines 0-11
add_polygon(sketch3, [(78.4107, 93.0521), (79.8838, 93.0521), (79.8838, 86.9521), (78.4849, 86.9521), (78.4849, 90.447), (76.5372, 86.9521), (74.6588, 86.9521), (74.6588, 93.0521), (76.0577, 93.0521), (76.0577, 88.8009)])  # lines 12-21
add_polygon(sketch3, [(82.6471, 88.1138), (85.2077, 88.1138), (85.2077, 86.9521), (81.1246, 86.9521), (81.1246, 93.0521), (82.6471, 93.0521), (82.6471, 90.4272), (85.0051, 90.4272), (85.0051, 89.2656), (82.6471, 89.2656)])  # lines 22-31
add_polygon(sketch3, [(85.7515, 93.0521), (89.0338, 93.0521), (89.0338, 91.9893), (88.1589, 91.9893), (88.1589, 88.0149), (89.0338, 88.0149), (89.0338, 86.9521), (85.7515, 86.9521), (85.7515, 88.0149), (86.6265, 88.0149), (86.6265, 91.9893), (85.7515, 91.9893)])  # lines 32-43
add_polygon(sketch3, [(93.8041, 93.0521), (95.2772, 93.0521), (95.2772, 86.9521), (93.8782, 86.9521), (93.8782, 90.447), (91.9306, 86.9521), (90.0522, 86.9521), (90.0522, 93.0521), (91.4511, 93.0521), (91.4511, 88.8009)])  # lines 44-53
add_polygon(sketch3, [(96.2708, 93.0521), (99.5531, 93.0521), (99.5531, 91.9893), (98.6782, 91.9893), (98.6782, 88.0149), (99.5531, 88.0149), (99.5531, 86.9521), (96.2708, 86.9521), (96.2708, 88.0149), (97.1458, 88.0149), (97.1458, 91.9893), (96.2708, 91.9893)])  # lines 54-65
add_polygon(sketch3, [(101.743, 88.1138), (101.743, 93.0521), (103.2754, 93.0521), (103.2754, 88.1138), (105.0797, 88.1138), (105.0797, 87.086184), (107.1411, 90.5805), (107.1411, 93.0521), (108.6735, 93.0521), (108.6735, 90.5063), (110.7793, 86.9521), (109.0887, 86.9521), (107.9369, 89.1271), (106.7456, 86.9521), (99.9387, 86.9521), (99.9387, 88.1138)])  # lines 66-81
sketch3.addConstraint([
    Sketcher.Constraint("Horizontal", 0),
    Sketcher.Constraint("Vertical", 1),
    Sketcher.Constraint("Horizontal", 2),
    Sketcher.Constraint("Vertical", 3),
    Sketcher.Constraint("Horizontal", 4),
    Sketcher.Constraint("Vertical", 5),
    Sketcher.Constraint("Horizontal", 6),
    Sketcher.Constraint("Vertical", 7),
    Sketcher.Constraint("Horizontal", 8),
    Sketcher.Constraint("Vertical", 9),
    Sketcher.Constraint("Horizontal", 10),
    Sketcher.Constraint("Vertical", 11),
    Sketcher.Constraint("Horizontal", 12),
    Sketcher.Constraint("Vertical", 13),
    Sketcher.Constraint("Horizontal", 14),
    Sketcher.Constraint("Vertical", 15),
    Sketcher.Constraint("Horizontal", 17),
    Sketcher.Constraint("Vertical", 18),
    Sketcher.Constraint("Horizontal", 19),
    Sketcher.Constraint("Vertical", 20),
    Sketcher.Constraint("Horizontal", 22),
    Sketcher.Constraint("Vertical", 23),
    Sketcher.Constraint("Horizontal", 24),
    Sketcher.Constraint("Vertical", 25),
    Sketcher.Constraint("Horizontal", 26),
    Sketcher.Constraint("Vertical", 27),
    Sketcher.Constraint("Horizontal", 28),
    Sketcher.Constraint("Vertical", 29),
    Sketcher.Constraint("Horizontal", 30),
    Sketcher.Constraint("Vertical", 31),
    Sketcher.Constraint("Horizontal", 32),
    Sketcher.Constraint("Vertical", 33),
    Sketcher.Constraint("Horizontal", 34),
    Sketcher.Constraint("Vertical", 35),
    Sketcher.Constraint("Horizontal", 36),
    Sketcher.Constraint("Vertical", 37),
    Sketcher.Constraint("Horizontal", 38),
    Sketcher.Constraint("Vertical", 39),
    Sketcher.Constraint("Horizontal", 40),
    Sketcher.Constraint("Vertical", 41),
    Sketcher.Constraint("Horizontal", 42),
    Sketcher.Constraint("Vertical", 43),
    Sketcher.Constraint("Horizontal", 44),
    Sketcher.Constraint("Vertical", 45),
    Sketcher.Constraint("Horizontal", 46),
    Sketcher.Constraint("Vertical", 47),
    Sketcher.Constraint("Horizontal", 49),
    Sketcher.Constraint("Vertical", 50),
    Sketcher.Constraint("Horizontal", 51),
    Sketcher.Constraint("Vertical", 52),
    Sketcher.Constraint("Horizontal", 54),
    Sketcher.Constraint("Vertical", 55),
    Sketcher.Constraint("Horizontal", 56),
    Sketcher.Constraint("Vertical", 57),
    Sketcher.Constraint("Horizontal", 58),
    Sketcher.Constraint("Vertical", 59),
    Sketcher.Constraint("Horizontal", 60),
    Sketcher.Constraint("Vertical", 61),
    Sketcher.Constraint("Horizontal", 62),
    Sketcher.Constraint("Vertical", 63),
    Sketcher.Constraint("Horizontal", 64),
    Sketcher.Constraint("Vertical", 65),
    Sketcher.Constraint("Vertical", 66),
    Sketcher.Constraint("Horizontal", 67),
    Sketcher.Constraint("Vertical", 68),
    Sketcher.Constraint("Horizontal", 69),
    Sketcher.Constraint("Vertical", 70),
    Sketcher.Constraint("Vertical", 72),
    Sketcher.Constraint("Horizontal", 73),
    Sketcher.Constraint("Vertical", 74),
    Sketcher.Constraint("Horizontal", 76),
    Sketcher.Constraint("Horizontal", 79),
    Sketcher.Constraint("Vertical", 80),
    Sketcher.Constraint("Horizontal", 81),
    Sketcher.Constraint("Parallel", 16, 48),
    Sketcher.Constraint("Parallel", 21, 53),
    Sketcher.Constraint("Horizontal", 4, 2, 7, 2),
    Sketcher.Constraint("Horizontal", 2, 2, 9, 2),
    Sketcher.Constraint("Horizontal", 11, 2, 12, 2),
    Sketcher.Constraint("Horizontal", 6, 2, 13, 2),
    Sketcher.Constraint("Horizontal", 14, 2, 16, 2),
    Sketcher.Constraint("Horizontal", 12, 2, 18, 2),
    Sketcher.Constraint("Horizontal", 17, 2, 23, 2),
    Sketcher.Constraint("Horizontal", 21, 2, 25, 2),
    Sketcher.Constraint("Horizontal", 26, 2, 32, 2),
    Sketcher.Constraint("Horizontal", 10, 2, 33, 2),
    Sketcher.Constraint("Horizontal", 8, 2, 35, 2),
    Sketcher.Constraint("Horizontal", 24, 2, 37, 2),
    Sketcher.Constraint("Horizontal", 36, 2, 39, 2),
    Sketcher.Constraint("Horizontal", 34, 2, 41, 2),
    Sketcher.Constraint("Horizontal", 43, 2, 44, 2),
    Sketcher.Constraint("Horizontal", 38, 2, 45, 2),
    Sketcher.Constraint("Horizontal", 15, 2, 47, 2),
    Sketcher.Constraint("Horizontal", 46, 2, 48, 2),
    Sketcher.Constraint("Horizontal", 44, 2, 50, 2),
    Sketcher.Constraint("Horizontal", 20, 2, 52, 2),
    Sketcher.Constraint("Horizontal", 53, 2, 54, 2),
    Sketcher.Constraint("Horizontal", 42, 2, 55, 2),
    Sketcher.Constraint("Horizontal", 40, 2, 57, 2),
    Sketcher.Constraint("Horizontal", 49, 2, 59, 2),
    Sketcher.Constraint("Horizontal", 58, 2, 61, 2),
    Sketcher.Constraint("Horizontal", 56, 2, 63, 2),
    Sketcher.Constraint("Horizontal", 65, 2, 66, 2),
    Sketcher.Constraint("Horizontal", 31, 2, 68, 2),
    Sketcher.Constraint("Horizontal", 67, 2, 72, 2),
    Sketcher.Constraint("Horizontal", 60, 2, 75, 2),
    Sketcher.Constraint("Horizontal", 76, 2, 78, 2),
    Sketcher.Constraint("Horizontal", 69, 2, 80, 2),
    Sketcher.Constraint("Vertical", 1, 2, 4, 2),
    Sketcher.Constraint("Vertical", 7, 2, 10, 2),
    Sketcher.Constraint("Vertical", 27, 2, 30, 2),
    Sketcher.Constraint("Vertical", 33, 2, 36, 2),
    Sketcher.Constraint("Vertical", 39, 2, 42, 2),
    Sketcher.Constraint("Vertical", 55, 2, 58, 2),
    Sketcher.Constraint("Vertical", 61, 2, 64, 2),
    Sketcher.Constraint("Equal", 4, 8),
    Sketcher.Constraint("Equal", 14, 19),
    Sketcher.Constraint("Equal", 6, 32),
    Sketcher.Constraint("Equal", 10, 34),
    Sketcher.Constraint("Equal", 36, 40),
    Sketcher.Constraint("Equal", 12, 44),
    Sketcher.Constraint("Equal", 19, 46),
    Sketcher.Constraint("Equal", 17, 49),
    Sketcher.Constraint("Equal", 38, 54),
    Sketcher.Constraint("Equal", 42, 56),
    Sketcher.Constraint("Equal", 58, 62),
    Sketcher.Constraint("Equal", 67, 73),
    Sketcher.Constraint("Equal", 69, 81),
    Sketcher.Constraint("Equal", 1, 5),
    Sketcher.Constraint("Equal", 23, 29),
    Sketcher.Constraint("DistanceY", 13, 2, 13, 1, 6.1),
    Sketcher.Constraint("Angle", 16, Q("-119.1308 deg")),
    Sketcher.Constraint("Angle", 78, Q("-118.7106 deg")),
    Sketcher.Constraint("Distance", 78, 2.48),
    Sketcher.Constraint("DistanceX", 2, 2, 2, 1, 0.875),
    Sketcher.Constraint("DistanceX", 12, 1, 12, 2, 1.473),
    Sketcher.Constraint("DistanceX", 14, 2, 14, 1, 1.399),
    Sketcher.Constraint("DistanceX", 24, 2, 24, 1, 4.083),
    Sketcher.Constraint("DistanceX", 28, 1, 28, 2, 2.358),
    Sketcher.Constraint("DistanceX", 79, 2, 79, 1, 6.807),
    Sketcher.Constraint("DistanceY", 15, 1, 15, 2, 3.495),
    Sketcher.Constraint("DistanceY", 27, 2, 27, 1, 2.625),
    Sketcher.Constraint("Distance", 21, 4.859),
    Sketcher.Constraint("Distance", 71, 4.057),
    Sketcher.Constraint("DistanceX", 0, 1, 0, 2, 3.2824),
    Sketcher.Constraint("DistanceX", 17, 2, 17, 1, 1.8784),
    Sketcher.Constraint("DistanceX", 22, 1, 22, 2, 2.5606),
    Sketcher.Constraint("DistanceX", 67, 1, 67, 2, 1.5324),
    Sketcher.Constraint("DistanceX", 69, 1, 69, 2, 1.8043),
    Sketcher.Constraint("DistanceX", 76, 2, 76, 1, 1.6906),
    Sketcher.Constraint("DistanceY", 1, 2, 1, 1, 1.0628),
    Sketcher.Constraint("DistanceY", 23, 2, 23, 1, 1.1617),
    Sketcher.Constraint("DistanceY", 70, 2, 70, 1, 1.0276),
    Sketcher.Constraint("DistanceY", 72, 1, 72, 2, 2.4716),
    Sketcher.Constraint("DistanceY", 74, 2, 74, 1, 2.5458),
    Sketcher.Constraint("DistanceY", -1, 1, 0, 2, 93.052),
    Sketcher.Constraint("DistanceX", -1, 1, 6, 2, 70.358),
    Sketcher.Constraint("DistanceX", -1, 1, 14, 2, 78.485),
    Sketcher.Constraint("DistanceX", -1, 1, 26, 2, 82.647),
    Sketcher.Constraint("DistanceX", -1, 1, 34, 2, 88.159),
    Sketcher.Constraint("DistanceX", -1, 1, 51, 2, 91.451),
    Sketcher.Constraint("DistanceX", -1, 1, 54, 2, 99.553),
    Sketcher.Constraint("DistanceX", -1, 1, 66, 2, 101.743),
    Sketcher.Constraint("Distance", 75, 4.1312),
])
pocket1 = doc.addObject("PartDesign::Pocket", "Pocket")
body.addObject(pocket1)
pocket1.Profile = sketch3
pocket1.Length = 1
pocket1.Reversed = True

# Sketch on YZ plane
sketch4 = doc.addObject("Sketcher::SketchObject", "Sketch003")
body.addObject(sketch4)
sketch4.AttachmentSupport = (doc.YZ_Plane, [""])
sketch4.MapMode = "FlatFace"
sketch4.AttachmentOffset = App.Placement(App.Vector(0, 0, 41.778), App.Rotation())
sketch4.addGeometry([
    Part.LineSegment(App.Vector(155.0393, 13, 0), App.Vector(155.0393, 0, 0)),  # 0
    Part.LineSegment(App.Vector(155.0393, 0, 0), App.Vector(165.0393, 0, 0)),  # 1
    Part.LineSegment(App.Vector(165.0393, 0, 0), App.Vector(165.0393, 13, 0)),  # 2
    Part.ArcOfCircle(Part.Circle(App.Vector(160.0393, 13, 0), App.Vector(0, 0, 1), 5), math.radians(0), math.radians(180)),  # 3
    Part.Circle(App.Vector(140.0391, 3, 0), App.Vector(0, 0, 1), 1.6),  # 4
    Part.Circle(App.Vector(140.0391, 20.2, 0), App.Vector(0, 0, 1), 1.6),  # 5
], False)
sketch4.addConstraint([
    Sketcher.Constraint("Coincident", 0, 2, 1, 1),
    Sketcher.Constraint("Coincident", 1, 2, 2, 1),
    Sketcher.Constraint("Tangent", 2, 2, 3, 1),
    Sketcher.Constraint("Tangent", 3, 2, 0, 1),
    Sketcher.Constraint("Vertical", 0),
    Sketcher.Constraint("Horizontal", 1),
    Sketcher.Constraint("Vertical", 2),
    Sketcher.Constraint("Equal", 4, 5),
    Sketcher.Constraint("PointOnObject", 0, 2, -1),
    Sketcher.Constraint("Vertical", 4, 3, 5, 3),
    Sketcher.Constraint("Radius", 3, 5.0),
    Sketcher.Constraint("Diameter", 4, 3.2),
    Sketcher.Constraint("DistanceY", 0, 2, 0, 1, 13.0),
    Sketcher.Constraint("DistanceY", -1, 1, 4, 3, 3.0),
    Sketcher.Constraint("DistanceY", -1, 1, 5, 3, 20.2),
    Sketcher.Constraint("DistanceX", -1, 1, 4, 3, 140.039),
    Sketcher.Constraint("DistanceX", -1, 1, 3, 3, 160.0393),
])
pocket2 = doc.addObject("PartDesign::Pocket", "Pocket001")
body.addObject(pocket2)
pocket2.Profile = sketch4
pocket2.Length = 230.6
pocket2.Midplane = True
doc.recompute()

fillet3 = doc.addObject("PartDesign::Fillet", "Fillet002")
body.addObject(fillet3)
fillet3.Base = (pocket2, edges_at(pocket2, [(48.478, 184.039, 24), (132.078, 184.039, 24)]))
fillet3.Radius = 2.475

doc.recompute()
